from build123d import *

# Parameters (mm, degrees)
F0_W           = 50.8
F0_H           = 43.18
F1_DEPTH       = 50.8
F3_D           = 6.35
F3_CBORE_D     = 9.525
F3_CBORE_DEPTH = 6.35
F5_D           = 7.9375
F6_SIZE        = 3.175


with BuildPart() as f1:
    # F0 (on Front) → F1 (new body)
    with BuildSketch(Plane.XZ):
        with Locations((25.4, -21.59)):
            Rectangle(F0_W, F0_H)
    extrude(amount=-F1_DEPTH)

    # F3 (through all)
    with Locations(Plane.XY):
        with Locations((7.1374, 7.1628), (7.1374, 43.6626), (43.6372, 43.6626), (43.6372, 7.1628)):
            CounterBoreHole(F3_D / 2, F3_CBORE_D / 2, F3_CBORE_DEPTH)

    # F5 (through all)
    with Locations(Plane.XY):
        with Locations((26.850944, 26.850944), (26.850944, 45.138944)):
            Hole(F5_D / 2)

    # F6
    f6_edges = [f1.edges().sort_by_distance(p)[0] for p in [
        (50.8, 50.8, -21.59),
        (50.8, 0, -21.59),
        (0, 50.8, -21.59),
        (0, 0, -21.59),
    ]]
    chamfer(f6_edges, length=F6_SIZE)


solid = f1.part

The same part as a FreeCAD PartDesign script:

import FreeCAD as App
import Part
import Sketcher

V = App.Vector
Q = App.Units.Quantity


def edges_at(feature, points):
    """Names of the edges that pass closest to the given points."""
    edges = feature.Shape.Edges
    near = lambda p: min(range(len(edges)), key=lambda i: edges[i].distToShape(Part.Vertex(*p))[0])
    return sorted({f"Edge{near(p) + 1}" for p in points})


def add_polygon(sketch, points):
    """Adds a closed chain of lines whose ends are joined by coincident constraints."""
    first, n = sketch.GeometryCount, len(points)
    for a, b in zip(points, points[1:] + points[:1]):
        sketch.addGeometry(Part.LineSegment(App.Vector(*a, 0), App.Vector(*b, 0)), False)
    for i in range(n):
        sketch.addConstraint(Sketcher.Constraint("Coincident", first + i, 2, first + (i + 1) % n, 1))

doc = App.newDocument("Part")
body = doc.addObject("PartDesign::Body", "Body")

sketch1 = body.newObject("Sketcher::SketchObject", "Sketch")
sketch1.AttachmentSupport = (doc.getObject("XZ_Plane"), [""])
sketch1.MapMode = "FlatFace"
add_polygon(sketch1, [(0, 0), (0, -43), (51, -43), (51, 0)])
sketch1.addConstraint([
    Sketcher.Constraint("Vertical", 0),
    Sketcher.Constraint("Horizontal", 1),
    Sketcher.Constraint("Vertical", 2),
    Sketcher.Constraint("Horizontal", 3),
    Sketcher.Constraint("Coincident", 3, 2, -1, 1),
    Sketcher.Constraint("DistanceX", 1, 1, 1, 2, Q("2 in")),
    Sketcher.Constraint("DistanceY", 0, 2, 0, 1, Q("1.7 in")),
])
pad1 = body.newObject("PartDesign::Pad", "Pad")
pad1.Profile = sketch1
pad1.Length = Q("2 in")
pad1.Reversed = True

sketch2 = body.newObject("Sketcher::SketchObject", "Sketch001")
sketch2.AttachmentSupport = (doc.getObject("XY_Plane"), [""])
sketch2.MapMode = "FlatFace"
sketch2.addGeometry([
    Part.Circle(V(7.1, 7.2, 0), V(0, 0, 1), 3.2),
    Part.Circle(V(7.1, 43.7, 0), V(0, 0, 1), 3.2),
    Part.Circle(V(43.6, 43.7, 0), V(0, 0, 1), 3.2),
    Part.Circle(V(43.6, 7.2, 0), V(0, 0, 1), 3.2),
], False)
sketch2.addConstraint([
    Sketcher.Constraint("Equal", 0, 1),
    Sketcher.Constraint("Equal", 1, 2),
    Sketcher.Constraint("Equal", 2, 3),
    Sketcher.Constraint("Horizontal", 1, 3, 2, 3),
    Sketcher.Constraint("Horizontal", 0, 3, 3, 3),
    Sketcher.Constraint("Vertical", 0, 3, 1, 3),
    Sketcher.Constraint("Vertical", 2, 3, 3, 3),
    Sketcher.Constraint("Diameter", 0, Q("0.25 in")),
    Sketcher.Constraint("DistanceX", -1, 1, 0, 3, Q("0.281 in")),
    Sketcher.Constraint("DistanceY", -1, 1, 0, 3, Q("0.282 in")),
    Sketcher.Constraint("DistanceY", -1, 1, 1, 3, Q("1.719 in")),
    Sketcher.Constraint("DistanceX", -1, 1, 2, 3, Q("1.718 in")),
])
doc.recompute()
hole = body.newObject("PartDesign::Hole", "Hole")
hole.Profile = sketch2
hole.ThreadType = "None"
hole.Diameter = Q("0.25 in")
hole.DepthType = "ThroughAll"
hole.HoleCutType = "Counterbore"
hole.HoleCutDiameter = Q("0.375 in")
hole.HoleCutDepth = Q("0.25 in")

sketch3 = body.newObject("Sketcher::SketchObject", "Sketch002")
sketch3.AttachmentSupport = (doc.getObject("XY_Plane"), [""])
sketch3.MapMode = "FlatFace"
sketch3.addGeometry([
    Part.Circle(V(26.9, 26.9, 0), V(0, 0, 1), 4),
    Part.Circle(V(26.9, 45.1, 0), V(0, 0, 1), 4),
], False)
sketch3.addConstraint([
    Sketcher.Constraint("Equal", 0, 1),
    Sketcher.Constraint("Vertical", 0, 3, 1, 3),
    Sketcher.Constraint("Diameter", 0, Q("0.3125 in")),
    Sketcher.Constraint("DistanceY", 0, 3, 1, 3, Q("0.72 in")),
    Sketcher.Constraint("DistanceX", -1, 1, 0, 3, Q("26.850944 mm")),
    Sketcher.Constraint("DistanceY", -1, 1, 0, 3, Q("26.850944 mm")),
])
doc.recompute()
hole2 = body.newObject("PartDesign::Hole", "Hole001")
hole2.Profile = sketch3
hole2.ThreadType = "None"
hole2.Diameter = Q("0.3125 in")
hole2.DepthType = "ThroughAll"
doc.recompute()

chamfer = body.newObject("PartDesign::Chamfer", "Chamfer")
chamfer.Base = (hole2, edges_at(hole2, [
    (50.8, 50.8, -21.59),
    (50.8, 0, -21.59),
    (0, 50.8, -21.59),
    (0, 0, -21.59),
]))
chamfer.Size = Q("0.125 in")

doc.recompute()
